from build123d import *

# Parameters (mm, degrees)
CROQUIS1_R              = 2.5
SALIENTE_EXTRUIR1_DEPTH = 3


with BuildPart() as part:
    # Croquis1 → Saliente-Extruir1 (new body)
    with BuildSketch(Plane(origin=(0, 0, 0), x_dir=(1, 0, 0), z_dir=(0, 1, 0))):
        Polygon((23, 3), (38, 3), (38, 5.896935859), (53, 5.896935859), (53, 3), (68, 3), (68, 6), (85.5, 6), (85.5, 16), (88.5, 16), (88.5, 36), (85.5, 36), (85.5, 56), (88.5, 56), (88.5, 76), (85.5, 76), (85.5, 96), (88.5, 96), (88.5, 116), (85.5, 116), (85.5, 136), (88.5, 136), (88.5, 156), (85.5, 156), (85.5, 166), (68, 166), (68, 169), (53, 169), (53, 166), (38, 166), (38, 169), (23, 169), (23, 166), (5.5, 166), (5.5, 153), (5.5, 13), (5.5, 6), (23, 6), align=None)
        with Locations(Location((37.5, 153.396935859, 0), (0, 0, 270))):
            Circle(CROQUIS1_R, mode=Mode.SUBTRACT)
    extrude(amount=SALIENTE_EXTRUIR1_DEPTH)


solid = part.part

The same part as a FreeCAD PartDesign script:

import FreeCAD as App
import Part
import Sketcher
from FreeCAD import Vector
Q = App.Units.Quantity

doc = App.newDocument("Part")
params = doc.addObject("Spreadsheet::Sheet", "Params")
for row, (alias, value) in enumerate([
    ("sketch1_diameter", "5 mm"),
    ("sketch1_width", "15 mm"),
    ("sketch1_width2", "3 mm"),
    ("sketch1_height", "10 mm"),
    ("sketch1_height2", "20 mm"),
    ("pad1_length", "3 mm"),
], start=1):
    params.set(f"A{row}", alias)
    params.set(f"B{row}", "=" + value)
    params.setAlias(f"B{row}", alias)

body = doc.addObject("PartDesign::Body", "Body")

sketch1 = body.newObject("Sketcher::SketchObject", "Sketch")
sketch1.AttachmentSupport = (doc.getObject("XZ_Plane"), [""])
sketch1.MapMode = "FlatFace"
sketch1.addGeometry([
    Part.LineSegment(Vector(23, -3, 0), Vector(38, -3, 0)),
    Part.LineSegment(Vector(38, -3, 0), Vector(38, -5.9, 0)),
    Part.LineSegment(Vector(38, -5.9, 0), Vector(53, -5.9, 0)),
    Part.LineSegment(Vector(53, -5.9, 0), Vector(53, -3, 0)),
    Part.LineSegment(Vector(53, -3, 0), Vector(68, -3, 0)),
    Part.LineSegment(Vector(68, -3, 0), Vector(68, -6, 0)),
    Part.LineSegment(Vector(68, -6, 0), Vector(85.5, -6, 0)),
    Part.LineSegment(Vector(85.5, -6, 0), Vector(85.5, -16, 0)),
    Part.LineSegment(Vector(85.5, -16, 0), Vector(88.5, -16, 0)),
    Part.LineSegment(Vector(88.5, -16, 0), Vector(88.5, -36, 0)),
    Part.LineSegment(Vector(88.5, -36, 0), Vector(85.5, -36, 0)),
    Part.LineSegment(Vector(85.5, -36, 0), Vector(85.5, -56, 0)),
    Part.LineSegment(Vector(85.5, -56, 0), Vector(88.5, -56, 0)),
    Part.LineSegment(Vector(88.5, -56, 0), Vector(88.5, -76, 0)),
    Part.LineSegment(Vector(88.5, -76, 0), Vector(85.5, -76, 0)),
    Part.LineSegment(Vector(85.5, -76, 0), Vector(85.5, -96, 0)),
    Part.LineSegment(Vector(85.5, -96, 0), Vector(88.5, -96, 0)),
    Part.LineSegment(Vector(88.5, -96, 0), Vector(88.5, -116, 0)),
    Part.LineSegment(Vector(88.5, -116, 0), Vector(85.5, -116, 0)),
    Part.LineSegment(Vector(85.5, -116, 0), Vector(85.5, -136, 0)),
    Part.LineSegment(Vector(85.5, -136, 0), Vector(88.5, -136, 0)),
    Part.LineSegment(Vector(88.5, -136, 0), Vector(88.5, -156, 0)),
    Part.LineSegment(Vector(88.5, -156, 0), Vector(85.5, -156, 0)),
    Part.LineSegment(Vector(85.5, -156, 0), Vector(85.5, -166, 0)),
    Part.LineSegment(Vector(85.5, -166, 0), Vector(68, -166, 0)),
    Part.LineSegment(Vector(68, -166, 0), Vector(68, -169, 0)),
    Part.LineSegment(Vector(68, -169, 0), Vector(53, -169, 0)),
    Part.LineSegment(Vector(53, -169, 0), Vector(53, -166, 0)),
    Part.LineSegment(Vector(53, -166, 0), Vector(38, -166, 0)),
    Part.LineSegment(Vector(38, -166, 0), Vector(38, -169, 0)),
    Part.LineSegment(Vector(38, -169, 0), Vector(23, -169, 0)),
    Part.LineSegment(Vector(23, -169, 0), Vector(23, -166, 0)),
    Part.LineSegment(Vector(23, -166, 0), Vector(5.5, -166, 0)),
    Part.LineSegment(Vector(5.5, -166, 0), Vector(5.5, -6, 0)),
    Part.LineSegment(Vector(5.5, -6, 0), Vector(23, -6, 0)),
    Part.LineSegment(Vector(23, -6, 0), Vector(23, -3, 0)),
    Part.Circle(Vector(37.5, -153.4, 0), Vector(0, 0, 1), 2.5),
], False)
sketch1.addConstraint([
    Sketcher.Constraint("Coincident", 0, 2, 1, 1),
    Sketcher.Constraint("Coincident", 1, 2, 2, 1),
    Sketcher.Constraint("Coincident", 2, 2, 3, 1),
    Sketcher.Constraint("Coincident", 3, 2, 4, 1),
    Sketcher.Constraint("Coincident", 4, 2, 5, 1),
    Sketcher.Constraint("Coincident", 5, 2, 6, 1),
    Sketcher.Constraint("Coincident", 6, 2, 7, 1),
    Sketcher.Constraint("Coincident", 7, 2, 8, 1),
    Sketcher.Constraint("Coincident", 8, 2, 9, 1),
    Sketcher.Constraint("Coincident", 9, 2, 10, 1),
    Sketcher.Constraint("Coincident", 10, 2, 11, 1),
    Sketcher.Constraint("Coincident", 11, 2, 12, 1),
    Sketcher.Constraint("Coincident", 12, 2, 13, 1),
    Sketcher.Constraint("Coincident", 13, 2, 14, 1),
    Sketcher.Constraint("Coincident", 14, 2, 15, 1),
    Sketcher.Constraint("Coincident", 15, 2, 16, 1),
    Sketcher.Constraint("Coincident", 16, 2, 17, 1),
    Sketcher.Constraint("Coincident", 17, 2, 18, 1),
    Sketcher.Constraint("Coincident", 18, 2, 19, 1),
    Sketcher.Constraint("Coincident", 19, 2, 20, 1),
    Sketcher.Constraint("Coincident", 20, 2, 21, 1),
    Sketcher.Constraint("Coincident", 21, 2, 22, 1),
    Sketcher.Constraint("Coincident", 22, 2, 23, 1),
    Sketcher.Constraint("Coincident", 23, 2, 24, 1),
    Sketcher.Constraint("Coincident", 24, 2, 25, 1),
    Sketcher.Constraint("Coincident", 25, 2, 26, 1),
    Sketcher.Constraint("Coincident", 26, 2, 27, 1),
    Sketcher.Constraint("Coincident", 27, 2, 28, 1),
    Sketcher.Constraint("Coincident", 28, 2, 29, 1),
    Sketcher.Constraint("Coincident", 29, 2, 30, 1),
    Sketcher.Constraint("Coincident", 30, 2, 31, 1),
    Sketcher.Constraint("Coincident", 31, 2, 32, 1),
    Sketcher.Constraint("Coincident", 32, 2, 33, 1),
    Sketcher.Constraint("Coincident", 33, 2, 34, 1),
    Sketcher.Constraint("Coincident", 34, 2, 35, 1),
    Sketcher.Constraint("Coincident", 35, 2, 0, 1),
    Sketcher.Constraint("Horizontal", 0),
    Sketcher.Constraint("Vertical", 1),
    Sketcher.Constraint("Horizontal", 2),
    Sketcher.Constraint("Vertical", 3),
    Sketcher.Constraint("Horizontal", 4),
    Sketcher.Constraint("Vertical", 5),
    Sketcher.Constraint("Horizontal", 6),
    Sketcher.Constraint("Vertical", 7),
    Sketcher.Constraint("Horizontal", 8),
    Sketcher.Constraint("Vertical", 9),
    Sketcher.Constraint("Horizontal", 10),
    Sketcher.Constraint("Vertical", 11),
    Sketcher.Constraint("Horizontal", 12),
    Sketcher.Constraint("Vertical", 13),
    Sketcher.Constraint("Horizontal", 14),
    Sketcher.Constraint("Vertical", 15),
    Sketcher.Constraint("Horizontal", 16),
    Sketcher.Constraint("Vertical", 17),
    Sketcher.Constraint("Horizontal", 18),
    Sketcher.Constraint("Vertical", 19),
    Sketcher.Constraint("Horizontal", 20),
    Sketcher.Constraint("Vertical", 21),
    Sketcher.Constraint("Horizontal", 22),
    Sketcher.Constraint("Vertical", 23),
    Sketcher.Constraint("Horizontal", 24),
    Sketcher.Constraint("Vertical", 25),
    Sketcher.Constraint("Horizontal", 26),
    Sketcher.Constraint("Vertical", 27),
    Sketcher.Constraint("Horizontal", 28),
    Sketcher.Constraint("Vertical", 29),
    Sketcher.Constraint("Horizontal", 30),
    Sketcher.Constraint("Vertical", 31),
    Sketcher.Constraint("Horizontal", 32),
    Sketcher.Constraint("Vertical", 33),
    Sketcher.Constraint("Horizontal", 34),
    Sketcher.Constraint("Vertical", 35),
    Sketcher.Constraint("Horizontal", 0, 2, 3, 2),
    Sketcher.Constraint("Horizontal", 24, 2, 27, 2),
    Sketcher.Constraint("Horizontal", 26, 2, 29, 2),
    Sketcher.Constraint("Horizontal", 28, 2, 31, 2),
    Sketcher.Constraint("Horizontal", 6, 2, 33, 2),
    Sketcher.Constraint("Vertical", 7, 2, 10, 2),
    Sketcher.Constraint("Vertical", 9, 2, 12, 2),
    Sketcher.Constraint("Vertical", 11, 2, 14, 2),
    Sketcher.Constraint("Vertical", 13, 2, 16, 2),
    Sketcher.Constraint("Vertical", 15, 2, 18, 2),
    Sketcher.Constraint("Vertical", 17, 2, 20, 2),
    Sketcher.Constraint("Vertical", 19, 2, 22, 2),
    Sketcher.Constraint("Vertical", 5, 2, 24, 2),
    Sketcher.Constraint("Vertical", 3, 2, 26, 2),
    Sketcher.Constraint("Vertical", 1, 2, 28, 2),
    Sketcher.Constraint("Vertical", 31, 2, 34, 2),
    Sketcher.Constraint("Equal", 0, 2),
    Sketcher.Constraint("Equal", 2, 4),
    Sketcher.Constraint("Equal", 24, 32),
    Sketcher.Constraint("Equal", 22, 5),
    Sketcher.Constraint("Equal", 9, 11),
    Sketcher.Constraint("Equal", 11, 13),
    Sketcher.Constraint("Equal", 13, 15),
    Sketcher.Constraint("Equal", 15, 17),
    Sketcher.Constraint("Equal", 17, 19),
    Sketcher.Constraint("Equal", 19, 21),
    Sketcher.Constraint("Equal", 7, 23),
    Sketcher.Constraint("Equal", 5, 25),
    Sketcher.Constraint("Diameter", 36, Q("5 mm")),
    Sketcher.Constraint("DistanceX", 0, 1, 0, 2, Q("15 mm")),
    Sketcher.Constraint("DistanceX", 8, 1, 8, 2, Q("3 mm")),
    Sketcher.Constraint("DistanceY", 7, 2, 7, 1, Q("10 mm")),
    Sketcher.Constraint("DistanceY", 9, 2, 9, 1, Q("20 mm")),
    Sketcher.Constraint("DistanceX", 6, 1, 6, 2, Q("17.5 mm")),
    Sketcher.Constraint("DistanceX", -1, 1, 0, 2, Q("38 mm")),
    Sketcher.Constraint("DistanceY", 0, 2, -1, 1, Q("3 mm")),
    Sketcher.Constraint("DistanceX", 36, 3, 19, 2, Q("48 mm")),
    Sketcher.Constraint("DistanceY", 36, 3, 1, 2, Q("147.5 mm")),
    Sketcher.Constraint("DistanceY", 1, 2, 1, 1, Q("2.896936 mm")),
])
sketch1.setExpression("Constraints[100]", "Params.sketch1_diameter")
sketch1.setExpression("Constraints[101]", "Params.sketch1_width")
sketch1.setExpression("Constraints[102]", "Params.sketch1_width2")
sketch1.setExpression("Constraints[103]", "Params.sketch1_height")
sketch1.setExpression("Constraints[104]", "Params.sketch1_height2")
pad1 = body.newObject("PartDesign::Pad", "Pad")
pad1.Profile = sketch1
pad1.setExpression("Length", "Params.pad1_length")
pad1.Reversed = True

doc.recompute()
